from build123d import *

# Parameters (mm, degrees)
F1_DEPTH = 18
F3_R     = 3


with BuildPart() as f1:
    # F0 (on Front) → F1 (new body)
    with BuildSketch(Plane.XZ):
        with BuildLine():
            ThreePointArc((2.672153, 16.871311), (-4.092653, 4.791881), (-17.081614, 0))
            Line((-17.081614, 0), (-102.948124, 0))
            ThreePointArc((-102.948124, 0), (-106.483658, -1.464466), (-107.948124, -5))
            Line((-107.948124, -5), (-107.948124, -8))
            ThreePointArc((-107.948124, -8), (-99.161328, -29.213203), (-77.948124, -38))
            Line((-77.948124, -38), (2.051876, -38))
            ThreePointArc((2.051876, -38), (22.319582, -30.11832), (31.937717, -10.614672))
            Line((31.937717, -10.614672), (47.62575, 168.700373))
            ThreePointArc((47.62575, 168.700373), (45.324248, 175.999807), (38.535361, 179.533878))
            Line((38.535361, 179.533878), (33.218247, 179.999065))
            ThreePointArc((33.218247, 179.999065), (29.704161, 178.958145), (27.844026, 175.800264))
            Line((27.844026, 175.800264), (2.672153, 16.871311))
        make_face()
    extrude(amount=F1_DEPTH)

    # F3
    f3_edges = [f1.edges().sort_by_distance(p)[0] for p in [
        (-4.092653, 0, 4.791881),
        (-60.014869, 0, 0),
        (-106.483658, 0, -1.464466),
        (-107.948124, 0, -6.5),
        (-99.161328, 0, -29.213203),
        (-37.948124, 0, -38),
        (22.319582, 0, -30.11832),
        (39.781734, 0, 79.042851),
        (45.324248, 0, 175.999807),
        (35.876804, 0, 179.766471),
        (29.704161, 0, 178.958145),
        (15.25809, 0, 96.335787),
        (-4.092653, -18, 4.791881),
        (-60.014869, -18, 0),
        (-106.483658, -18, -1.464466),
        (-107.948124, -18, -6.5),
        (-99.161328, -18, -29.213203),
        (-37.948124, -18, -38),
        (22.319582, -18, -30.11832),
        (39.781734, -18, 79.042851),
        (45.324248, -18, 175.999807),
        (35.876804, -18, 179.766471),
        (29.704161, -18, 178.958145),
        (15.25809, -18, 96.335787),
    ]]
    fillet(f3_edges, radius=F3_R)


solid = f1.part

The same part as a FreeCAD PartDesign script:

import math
import FreeCAD as App
import Part
import Sketcher

V = App.Vector
Q = App.Units.Quantity


def edges_at(feature, points):
    """Names of the edges that pass closest to the given points."""
    edges = feature.Shape.Edges
    near = lambda p: min(range(len(edges)), key=lambda i: edges[i].distToShape(Part.Vertex(*p))[0])
    return sorted({f"Edge{near(p) + 1}" for p in points})

doc = App.newDocument("Part")
body = doc.addObject("PartDesign::Body", "Body")

# Sketch on XZ plane
sketch1 = body.newObject("Sketcher::SketchObject", "Sketch")
sketch1.AttachmentSupport = (doc.getObject("XZ_Plane"), [""])
sketch1.MapMode = "FlatFace"
sketch1.addGeometry(Part.ArcOfCircle(Part.Circle(V(-17.081615, 20.000001, 0), V(0, 0, 1), 20.000001), math.radians(-89.999998), math.radians(-9.000002)), False)
sketch1.addGeometry(Part.LineSegment(V(-17.081614, 0, 0), V(-102.948124, 0, 0)), False)
sketch1.addGeometry(Part.ArcOfCircle(Part.Circle(V(-102.948124, -5, 0), V(0, 0, 1), 5), math.radians(89.999996), math.radians(180.000004)), False)
sketch1.addGeometry(Part.LineSegment(V(-107.948124, -5, 0), V(-107.948124, -8, 0)), False)
sketch1.addGeometry(Part.ArcOfCircle(Part.Circle(V(-77.948124, -8, 0), V(0, 0, 1), 30), math.radians(180), math.radians(270)), False)
sketch1.addGeometry(Part.LineSegment(V(-77.948124, -38, 0), V(2.051876, -38, 0)), False)
sketch1.addGeometry(Part.ArcOfCircle(Part.Circle(V(2.051875, -7.999999, 0), V(0, 0, 1), 30.000001), math.radians(-89.999999), math.radians(-5.000001)), False)
sketch1.addGeometry(Part.LineSegment(V(31.937717, -10.614672, 0), V(47.62575, 168.700373, 0)), False)
sketch1.addGeometry(Part.ArcOfCircle(Part.Circle(V(37.663804, 169.571932, 0), V(0, 0, 1), 9.999999), math.radians(-5.000007), math.radians(85.000001)), False)
sketch1.addGeometry(Part.LineSegment(V(38.535361, 179.533878, 0), V(33.218247, 179.999065, 0)), False)
sketch1.addGeometry(Part.ArcOfCircle(Part.Circle(V(32.782469, 175.01809, 0), V(0, 0, 1), 5.000002), math.radians(85.000013), math.radians(170.999979)), False)
sketch1.addGeometry(Part.LineSegment(V(27.844026, 175.800264, 0), V(2.672153, 16.871311, 0)), False)
sketch1.addConstraint(Sketcher.Constraint("Tangent", 0, 1, 1, 1))
sketch1.addConstraint(Sketcher.Constraint("Tangent", 1, 2, 2, 1))
sketch1.addConstraint(Sketcher.Constraint("Tangent", 2, 2, 3, 1))
sketch1.addConstraint(Sketcher.Constraint("Tangent", 3, 2, 4, 1))
sketch1.addConstraint(Sketcher.Constraint("Tangent", 4, 2, 5, 1))
sketch1.addConstraint(Sketcher.Constraint("Tangent", 5, 2, 6, 1))
sketch1.addConstraint(Sketcher.Constraint("Tangent", 6, 2, 7, 1))
sketch1.addConstraint(Sketcher.Constraint("Tangent", 7, 2, 8, 1))
sketch1.addConstraint(Sketcher.Constraint("Tangent", 8, 2, 9, 1))
sketch1.addConstraint(Sketcher.Constraint("Tangent", 9, 2, 10, 1))
sketch1.addConstraint(Sketcher.Constraint("Tangent", 10, 2, 11, 1))
sketch1.addConstraint(Sketcher.Constraint("Tangent", 11, 2, 0, 2))
sketch1.addConstraint(Sketcher.Constraint("Horizontal", 1))
sketch1.addConstraint(Sketcher.Constraint("Vertical", 3))
sketch1.addConstraint(Sketcher.Constraint("Horizontal", 5))
sketch1.addConstraint(Sketcher.Constraint("Equal", 4, 6))
sketch1.addConstraint(Sketcher.Constraint("PointOnObject", 0, 1, -1))
sketch1.addConstraint(Sketcher.Constraint("Perpendicular", 7, 9))
sketch1.addConstraint(Sketcher.Constraint("Radius", 0, 20.000001))
sketch1.addConstraint(Sketcher.Constraint("Radius", 2, 5.0))
sketch1.addConstraint(Sketcher.Constraint("Radius", 4, 30.0))
sketch1.addConstraint(Sketcher.Constraint("Radius", 8, 9.999999))
sketch1.addConstraint(Sketcher.Constraint("Radius", 10, 5.000002))
sketch1.addConstraint(Sketcher.Constraint("DistanceX", 5, 1, 5, 2, 80.0))
sketch1.addConstraint(Sketcher.Constraint("DistanceY", 3, 2, 3, 1, 3.0))
sketch1.addConstraint(Sketcher.Constraint("Angle", 7, Q("85 deg")))
sketch1.addConstraint(Sketcher.Constraint("Angle", 11, Q("-99 deg")))
sketch1.addConstraint(Sketcher.Constraint("Distance", 7, 179.999999))
sketch1.addConstraint(Sketcher.Constraint("DistanceX", 1, 2, 1, 1, 85.86651))
sketch1.addConstraint(Sketcher.Constraint("DistanceX", -1, 1, 10, 3, 32.782469))
pad1 = body.newObject("PartDesign::Pad", "Pad")
pad1.Profile = sketch1
pad1.Length = 18
doc.recompute()

fillet = body.newObject("PartDesign::Fillet", "Fillet")
fillet.Base = (pad1, edges_at(pad1, [
    (-4.093, 0, 4.792),
    (-60.015, 0, 0),
    (-106.484, 0, -1.464),
    (-107.948, 0, -6.5),
    (-99.161, 0, -29.213),
    (-37.948, 0, -38),
    (22.32, 0, -30.118),
    (39.782, 0, 79.043),
    (45.324, 0, 176),
    (35.877, 0, 179.766),
    (29.704, 0, 178.958),
    (15.258, 0, 96.336),
    (-4.093, -18, 4.792),
    (-60.015, -18, 0),
    (-106.484, -18, -1.464),
    (-107.948, -18, -6.5),
    (-99.161, -18, -29.213),
    (-37.948, -18, -38),
    (22.32, -18, -30.118),
    (39.782, -18, 79.043),
    (45.324, -18, 176),
    (35.877, -18, 179.766),
    (29.704, -18, 178.958),
    (15.258, -18, 96.336),
]))
fillet.Radius = 3

doc.recompute()
